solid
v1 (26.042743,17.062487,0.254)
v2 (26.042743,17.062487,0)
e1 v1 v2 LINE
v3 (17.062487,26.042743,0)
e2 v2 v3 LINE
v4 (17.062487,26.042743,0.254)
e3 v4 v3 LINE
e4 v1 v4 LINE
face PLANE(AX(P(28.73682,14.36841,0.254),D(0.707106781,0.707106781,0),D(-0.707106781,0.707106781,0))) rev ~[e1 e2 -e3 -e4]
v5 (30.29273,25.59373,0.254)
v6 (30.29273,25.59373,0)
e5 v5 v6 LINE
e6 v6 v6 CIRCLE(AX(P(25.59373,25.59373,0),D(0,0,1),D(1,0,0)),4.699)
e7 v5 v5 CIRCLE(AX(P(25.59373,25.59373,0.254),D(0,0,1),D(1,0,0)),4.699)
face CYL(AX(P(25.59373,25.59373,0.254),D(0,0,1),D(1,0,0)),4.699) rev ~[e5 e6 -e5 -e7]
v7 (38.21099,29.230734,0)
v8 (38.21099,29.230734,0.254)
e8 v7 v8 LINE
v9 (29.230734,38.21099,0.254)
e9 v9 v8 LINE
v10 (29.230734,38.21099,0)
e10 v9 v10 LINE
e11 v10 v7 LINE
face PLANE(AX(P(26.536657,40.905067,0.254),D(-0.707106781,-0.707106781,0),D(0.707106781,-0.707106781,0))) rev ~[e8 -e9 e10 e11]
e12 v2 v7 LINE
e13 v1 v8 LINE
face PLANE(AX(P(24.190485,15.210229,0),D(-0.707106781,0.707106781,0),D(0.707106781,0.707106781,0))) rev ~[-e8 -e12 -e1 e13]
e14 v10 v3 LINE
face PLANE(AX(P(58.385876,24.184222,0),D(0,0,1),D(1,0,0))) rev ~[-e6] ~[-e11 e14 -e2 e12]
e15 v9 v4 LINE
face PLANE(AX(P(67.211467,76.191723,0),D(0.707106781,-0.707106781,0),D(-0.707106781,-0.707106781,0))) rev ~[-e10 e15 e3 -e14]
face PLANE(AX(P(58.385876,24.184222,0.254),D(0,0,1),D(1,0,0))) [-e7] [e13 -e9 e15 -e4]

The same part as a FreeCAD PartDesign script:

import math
import FreeCAD as App
import Part
import Sketcher
from FreeCAD import Vector
Q = App.Units.Quantity

doc = App.newDocument("Part")
body = doc.addObject("PartDesign::Body", "Body")

# Sketch on XY plane
sketch1 = body.newObject("Sketcher::SketchObject", "Sketch")
sketch1.AttachmentSupport = (doc.getObject("XY_Plane"), [""])
sketch1.MapMode = "FlatFace"
sketch1.addGeometry([
    Part.LineSegment(Vector(67.2, 76.2, 0), Vector(8.7, 17.7, 0)),  # 0
    Part.LineSegment(Vector(8.7, 17.7, 0), Vector(7.2, 14.1, 0)),  # 1
    Part.ArcOfCircle(Part.Circle(Vector(0, 0, 0), Vector(0, 0, 1), 15.9), math.radians(-18), math.radians(63)),  # 2
    Part.LineSegment(Vector(15.1, -4.9, 0), Vector(18.6, -6.3, 0)),  # 3
    Part.LineSegment(Vector(18.6, -6.3, 0), Vector(101.4, -6.3, 0)),  # 4
    Part.ArcOfCircle(Part.Circle(Vector(0, 0, 0), Vector(0, 0, 1), 101.6), math.radians(-4), math.radians(49)),  # 5
    Part.ArcOfCircle(Part.Circle(Vector(0, 0, 0), Vector(0, 0, 1), 88.9), math.radians(4), math.radians(41)),  # 6
    Part.LineSegment(Vector(88.7, 6.3, 0), Vector(27.9, 6.3, 0)),  # 7
    Part.ArcOfCircle(Part.Circle(Vector(0, 0, 0), Vector(0, 0, 1), 28.6), math.radians(12.84), math.radians(32.16)),  # 8
    Part.LineSegment(Vector(24.2, 15.2, 0), Vector(67.2, 58.2, 0)),  # 9
], False)
sketch1.addConstraint([
    Sketcher.Constraint("Coincident", 0, 2, 1, 1),
    Sketcher.Constraint("Coincident", 1, 2, 2, 2),
    Sketcher.Constraint("Coincident", 2, 1, 3, 1),
    Sketcher.Constraint("Coincident", 3, 2, 4, 1),
    Sketcher.Constraint("Coincident", 4, 2, 5, 1),
    Sketcher.Constraint("Coincident", 5, 2, 0, 1),
    Sketcher.Constraint("Coincident", 6, 1, 7, 1),
    Sketcher.Constraint("Coincident", 7, 2, 8, 1),
    Sketcher.Constraint("Coincident", 8, 2, 9, 1),
    Sketcher.Constraint("Coincident", 9, 2, 6, 2),
    Sketcher.Constraint("Horizontal", 4),
    Sketcher.Constraint("Horizontal", 7),
    Sketcher.Constraint("Coincident", 2, 3, -1, 1),
    Sketcher.Constraint("Coincident", 5, 3, -1, 1),
    Sketcher.Constraint("Coincident", 6, 3, -1, 1),
    Sketcher.Constraint("Coincident", 8, 3, -1, 1),
    Sketcher.Constraint("Perpendicular", 1, 3),
    Sketcher.Constraint("Parallel", 0, 9),
    Sketcher.Constraint("Equal", 1, 3),
    Sketcher.Constraint("Radius", 5, Q("4 in")),
    Sketcher.Constraint("Radius", 6, Q("3.5 in")),
    Sketcher.Constraint("Angle", 0, Q("-135 deg")),
    Sketcher.Constraint("Radius", 2, Q("0.625 in")),
    Sketcher.Constraint("Radius", 8, Q("1.125 in")),
    Sketcher.Constraint("Angle", 1, Q("-112.5 deg")),
    Sketcher.Constraint("DistanceY", 4, 2, 6, 1, Q("0.5 in")),
    Sketcher.Constraint("DistanceY", 3, 2, -1, 1, Q("0.25 in")),
    Sketcher.Constraint("DistanceY", 2, 1, -1, 1, Q("4.882301 mm")),
    Sketcher.Constraint("DistanceY", -1, 1, 9, 2, Q("58.211098 mm")),
    Sketcher.Constraint("DistanceX", 5, 2, 4, 2, Q("34.189901 mm")),
])
pad1 = body.newObject("PartDesign::Pad", "Pad")
pad1.Profile = sketch1
pad1.Length = Q("0.01 in")

# Sketch on XY plane
sketch2 = body.newObject("Sketcher::SketchObject", "Sketch001")
sketch2.AttachmentSupport = (doc.getObject("XY_Plane"), [""])
sketch2.MapMode = "FlatFace"
sketch2.AttachmentOffset = App.Placement(Vector(0, 0, 0.01 * 25.4), App.Rotation())
sketch2.addGeometry([
    Part.Circle(Vector(22.2, 0, 0), Vector(0, 0, 1), 4.7),  # 0
    Part.Circle(Vector(36.2, 0, 0), Vector(0, 0, 1), 4.7),  # 1
    Part.Circle(Vector(61.7, 0, 0), Vector(0, 0, 1), 4.7),  # 2
    Part.Circle(Vector(75.7, 0, 0), Vector(0, 0, 1), 4.7),  # 3
    Part.Circle(Vector(95.2, 0, 0), Vector(0, 0, 1), 4.7),  # 4
    Part.Circle(Vector(15.7, 15.7, 0), Vector(0, 0, 1), 4.7),  # 5
    Part.Circle(Vector(25.6, 25.6, 0), Vector(0, 0, 1), 4.7),  # 6
    Part.Circle(Vector(43.6, 43.6, 0), Vector(0, 0, 1), 4.7),  # 7
    Part.Circle(Vector(53.5, 53.5, 0), Vector(0, 0, 1), 4.7),  # 8
    Part.Circle(Vector(92, 24.7, 0), Vector(0, 0, 1), 4.7),  # 9
    Part.Circle(Vector(82.5, 47.6, 0), Vector(0, 0, 1), 4.7),  # 10
    Part.Circle(Vector(67.4, 67.4, 0), Vector(0, 0, 1), 4.7),  # 11
], False)
sketch2.addConstraint([
    Sketcher.Constraint("Equal", 0, 1),
    Sketcher.Constraint("Equal", 1, 2),
    Sketcher.Constraint("Equal", 2, 3),
    Sketcher.Constraint("Equal", 3, 4),
    Sketcher.Constraint("Equal", 4, 5),
    Sketcher.Constraint("Equal", 5, 6),
    Sketcher.Constraint("Equal", 6, 7),
    Sketcher.Constraint("Equal", 7, 8),
    Sketcher.Constraint("Equal", 8, 9),
    Sketcher.Constraint("Equal", 9, 10),
    Sketcher.Constraint("Equal", 10, 11),
    Sketcher.Constraint("PointOnObject", 0, 3, -1),
    Sketcher.Constraint("PointOnObject", 1, 3, -1),
    Sketcher.Constraint("PointOnObject", 2, 3, -1),
    Sketcher.Constraint("PointOnObject", 3, 3, -1),
    Sketcher.Constraint("PointOnObject", 4, 3, -1),
    Sketcher.Constraint("Diameter", 0, Q("0.37 in")),
    Sketcher.Constraint("DistanceX", -1, 1, 2, 3, Q("2.43 in")),
    Sketcher.Constraint("DistanceX", -1, 1, 3, 3, Q("2.98 in")),
    Sketcher.Constraint("DistanceX", -1, 1, 4, 3, Q("3.75 in")),
    Sketcher.Constraint("DistanceX", 0, 3, 1, 3, Q("0.55 in")),
    Sketcher.Constraint("DistanceX", -1, 1, 0, 3, Q("0.875 in")),
    Sketcher.Constraint("DistanceY", -1, 1, 10, 3, Q("1.875 in")),
    Sketcher.Constraint("DistanceX", 11, 3, 10, 3, Q("15.136999 mm")),
    Sketcher.Constraint("DistanceX", -1, 1, 5, 3, Q("15.715448 mm")),
    Sketcher.Constraint("DistanceY", -1, 1, 5, 3, Q("15.715448 mm")),
    Sketcher.Constraint("DistanceX", -1, 1, 6, 3, Q("25.59373 mm")),
    Sketcher.Constraint("DistanceY", -1, 1, 6, 3, Q("25.59373 mm")),
    Sketcher.Constraint("DistanceX", -1, 1, 10, 3, Q("82.48892 mm")),
    Sketcher.Constraint("DistanceY", -1, 1, 11, 3, Q("67.351921 mm")),
    Sketcher.Constraint("DistanceX", 7, 3, 8, 3, Q("9.878282 mm")),
    Sketcher.Constraint("DistanceY", 7, 3, 8, 3, Q("9.878282 mm")),
    Sketcher.Constraint("DistanceX", 5, 3, 8, 3, Q("37.806878 mm")),
    Sketcher.Constraint("DistanceY", 5, 3, 8, 3, Q("37.806878 mm")),
    Sketcher.Constraint("DistanceX", 8, 3, 9, 3, Q("38.482108 mm")),
    Sketcher.Constraint("DistanceY", 9, 3, 7, 3, Q("18.991531 mm")),
])
pocket1 = body.newObject("PartDesign::Pocket", "Pocket")
pocket1.Profile = sketch2
pocket1.Type = "ThroughAll"

# Sketch on XY plane
sketch3 = body.newObject("Sketcher::SketchObject", "Sketch002")
sketch3.AttachmentSupport = (doc.getObject("XY_Plane"), [""])
sketch3.MapMode = "FlatFace"
sketch3.AttachmentOffset = App.Placement(Vector(0, 0, 0.01 * 25.4), App.Rotation())
sketch3.addGeometry([
    Part.LineSegment(Vector(17.1, 26, 0), Vector(15.3, 24.2, 0)),  # 0
    Part.LineSegment(Vector(15.3, 24.2, 0), Vector(15.7, 23.8, 0)),  # 1
    Part.LineSegment(Vector(15.7, 23.8, 0), Vector(17.5, 25.6, 0)),  # 2
    Part.LineSegment(Vector(17.5, 25.6, 0), Vector(17.1, 26, 0)),  # 3
    Part.LineSegment(Vector(45, 54, 0), Vector(43.2, 52.2, 0)),  # 4
    Part.LineSegment(Vector(43.2, 52.2, 0), Vector(43.6, 51.7, 0)),  # 5
    Part.LineSegment(Vector(43.6, 51.7, 0), Vector(45.4, 53.5, 0)),  # 6
    Part.LineSegment(Vector(45.4, 53.5, 0), Vector(45, 54, 0)),  # 7
    Part.LineSegment(Vector(27.9, -5.7, 0), Vector(27.9, -6.3, 0)),  # 8
    Part.LineSegment(Vector(27.9, -6.3, 0), Vector(30.5, -6.3, 0)),  # 9
    Part.LineSegment(Vector(30.5, -6.3, 0), Vector(30.5, -5.7, 0)),  # 10
    Part.LineSegment(Vector(30.5, -5.7, 0), Vector(27.9, -5.7, 0)),  # 11
    Part.LineSegment(Vector(67.4, -5.7, 0), Vector(67.4, -6.3, 0)),  # 12
    Part.LineSegment(Vector(67.4, -6.3, 0), Vector(70, -6.3, 0)),  # 13
    Part.LineSegment(Vector(70, -6.3, 0), Vector(70, -5.7, 0)),  # 14
    Part.LineSegment(Vector(70, -5.7, 0), Vector(67.4, -5.7, 0)),  # 15
    Part.LineSegment(Vector(31, 40, 0), Vector(29.2, 38.2, 0)),  # 16
    Part.LineSegment(Vector(29.2, 38.2, 0), Vector(29.7, 37.8, 0)),  # 17
    Part.LineSegment(Vector(29.7, 37.8, 0), Vector(31.5, 39.6, 0)),  # 18
    Part.LineSegment(Vector(31.5, 39.6, 0), Vector(31, 40, 0)),  # 19
    Part.LineSegment(Vector(56.8, 65.8, 0), Vector(55, 64, 0)),  # 20
    Part.LineSegment(Vector(55, 64, 0), Vector(55.5, 63.6, 0)),  # 21
    Part.LineSegment(Vector(55.5, 63.6, 0), Vector(57.3, 65.4, 0)),  # 22
    Part.LineSegment(Vector(57.3, 65.4, 0), Vector(56.8, 65.8, 0)),  # 23
    Part.LineSegment(Vector(47.7, -5.7, 0), Vector(47.7, -6.3, 0)),  # 24
    Part.LineSegment(Vector(47.7, -6.3, 0), Vector(50.2, -6.3, 0)),  # 25
    Part.LineSegment(Vector(50.2, -6.3, 0), Vector(50.2, -5.7, 0)),  # 26
    Part.LineSegment(Vector(50.2, -5.7, 0), Vector(47.7, -5.7, 0)),  # 27
    Part.LineSegment(Vector(84.2, -5.7, 0), Vector(84.2, -6.3, 0)),  # 28
    Part.LineSegment(Vector(84.2, -6.3, 0), Vector(86.7, -6.3, 0)),  # 29
    Part.LineSegment(Vector(86.7, -6.3, 0), Vector(86.7, -5.7, 0)),  # 30
    Part.LineSegment(Vector(86.7, -5.7, 0), Vector(84.2, -5.7, 0)),  # 31
    Part.LineSegment(Vector(99.9, 14.4, 0), Vector(100.3, 11.9, 0)),  # 32
    Part.LineSegment(Vector(100.3, 11.9, 0), Vector(101.5, 12.1, 0)),  # 33
    Part.LineSegment(Vector(101.5, 12.1, 0), Vector(101.2, 14.6, 0)),  # 34
    Part.LineSegment(Vector(101.2, 14.6, 0), Vector(99.9, 14.4, 0)),  # 35
    Part.LineSegment(Vector(93.8, 37.5, 0), Vector(94.9, 38, 0)),  # 36
    Part.LineSegment(Vector(94.9, 38, 0), Vector(94, 40.3, 0)),  # 37
    Part.LineSegment(Vector(94, 40.3, 0), Vector(92.8, 39.8, 0)),  # 38
    Part.LineSegment(Vector(92.8, 39.8, 0), Vector(93.8, 37.5, 0)),  # 39
    Part.LineSegment(Vector(79.3, 62.5, 0), Vector(80.9, 60.5, 0)),  # 40
    Part.LineSegment(Vector(80.9, 60.5, 0), Vector(81.9, 61.2, 0)),  # 41
    Part.LineSegment(Vector(81.9, 61.2, 0), Vector(80.3, 63.2, 0)),  # 42
    Part.LineSegment(Vector(80.3, 63.2, 0), Vector(79.3, 62.5, 0)),  # 43
    Part.LineSegment(Vector(13.6, 7, 0), Vector(14.6, 4.7, 0)),  # 44
    Part.LineSegment(Vector(14.6, 4.7, 0), Vector(15.7, 5.1, 0)),  # 45
    Part.LineSegment(Vector(15.7, 5.1, 0), Vector(14.8, 7.5, 0)),  # 46
    Part.LineSegment(Vector(14.8, 7.5, 0), Vector(13.6, 7, 0)),  # 47
], False)
sketch3.addConstraint([
    Sketcher.Constraint("Coincident", 0, 2, 1, 1),
    Sketcher.Constraint("Coincident", 1, 2, 2, 1),
    Sketcher.Constraint("Coincident", 2, 2, 3, 1),
    Sketcher.Constraint("Coincident", 3, 2, 0, 1),
    Sketcher.Constraint("Coincident", 4, 2, 5, 1),
    Sketcher.Constraint("Coincident", 5, 2, 6, 1),
    Sketcher.Constraint("Coincident", 6, 2, 7, 1),
    Sketcher.Constraint("Coincident", 7, 2, 4, 1),
    Sketcher.Constraint("Coincident", 8, 2, 9, 1),
    Sketcher.Constraint("Coincident", 9, 2, 10, 1),
    Sketcher.Constraint("Coincident", 10, 2, 11, 1),
    Sketcher.Constraint("Coincident", 11, 2, 8, 1),
    Sketcher.Constraint("Coincident", 12, 2, 13, 1),
    Sketcher.Constraint("Coincident", 13, 2, 14, 1),
    Sketcher.Constraint("Coincident", 14, 2, 15, 1),
    Sketcher.Constraint("Coincident", 15, 2, 12, 1),
    Sketcher.Constraint("Coincident", 16, 2, 17, 1),
    Sketcher.Constraint("Coincident", 17, 2, 18, 1),
    Sketcher.Constraint("Coincident", 18, 2, 19, 1),
    Sketcher.Constraint("Coincident", 19, 2, 16, 1),
    Sketcher.Constraint("Coincident", 20, 2, 21, 1),
    Sketcher.Constraint("Coincident", 21, 2, 22, 1),
    Sketcher.Constraint("Coincident", 22, 2, 23, 1),
    Sketcher.Constraint("Coincident", 23, 2, 20, 1),
    Sketcher.Constraint("Coincident", 24, 2, 25, 1),
    Sketcher.Constraint("Coincident", 25, 2, 26, 1),
    Sketcher.Constraint("Coincident", 26, 2, 27, 1),
    Sketcher.Constraint("Coincident", 27, 2, 24, 1),
    Sketcher.Constraint("Coincident", 28, 2, 29, 1),
    Sketcher.Constraint("Coincident", 29, 2, 30, 1),
    Sketcher.Constraint("Coincident", 30, 2, 31, 1),
    Sketcher.Constraint("Coincident", 31, 2, 28, 1),
    Sketcher.Constraint("Coincident", 32, 2, 33, 1),
    Sketcher.Constraint("Coincident", 33, 2, 34, 1),
    Sketcher.Constraint("Coincident", 34, 2, 35, 1),
    Sketcher.Constraint("Coincident", 35, 2, 32, 1),
    Sketcher.Constraint("Coincident", 36, 2, 37, 1),
    Sketcher.Constraint("Coincident", 37, 2, 38, 1),
    Sketcher.Constraint("Coincident", 38, 2, 39, 1),
    Sketcher.Constraint("Coincident", 39, 2, 36, 1),
    Sketcher.Constraint("Coincident", 40, 2, 41, 1),
    Sketcher.Constraint("Coincident", 41, 2, 42, 1),
    Sketcher.Constraint("Coincident", 42, 2, 43, 1),
    Sketcher.Constraint("Coincident", 43, 2, 40, 1),
    Sketcher.Constraint("Coincident", 44, 2, 45, 1),
    Sketcher.Constraint("Coincident", 45, 2, 46, 1),
    Sketcher.Constraint("Coincident", 46, 2, 47, 1),
    Sketcher.Constraint("Coincident", 47, 2, 44, 1),
    Sketcher.Constraint("Vertical", 8),
    Sketcher.Constraint("Horizontal", 9),
    Sketcher.Constraint("Vertical", 10),
    Sketcher.Constraint("Horizontal", 11),
    Sketcher.Constraint("Vertical", 12),
    Sketcher.Constraint("Horizontal", 13),
    Sketcher.Constraint("Vertical", 14),
    Sketcher.Constraint("Horizontal", 15),
    Sketcher.Constraint("Vertical", 24),
    Sketcher.Constraint("Horizontal", 25),
    Sketcher.Constraint("Vertical", 26),
    Sketcher.Constraint("Horizontal", 27),
    Sketcher.Constraint("Vertical", 28),
    Sketcher.Constraint("Horizontal", 29),
    Sketcher.Constraint("Vertical", 30),
    Sketcher.Constraint("Horizontal", 31),
    Sketcher.Constraint("Perpendicular", 0, 1),
    Sketcher.Constraint("Perpendicular", 1, 2),
    Sketcher.Constraint("Perpendicular", 2, 3),
    Sketcher.Constraint("Perpendicular", 3, 4),
    Sketcher.Constraint("Perpendicular", 4, 5),
    Sketcher.Constraint("Perpendicular", 5, 6),
    Sketcher.Constraint("Perpendicular", 6, 7),
    Sketcher.Constraint("Perpendicular", 7, 16),
    Sketcher.Constraint("Perpendicular", 16, 17),
    Sketcher.Constraint("Perpendicular", 17, 18),
    Sketcher.Constraint("Perpendicular", 18, 19),
    Sketcher.Constraint("Perpendicular", 19, 20),
    Sketcher.Constraint("Perpendicular", 20, 21),
    Sketcher.Constraint("Perpendicular", 21, 22),
    Sketcher.Constraint("Perpendicular", 22, 23),
    Sketcher.Constraint("Perpendicular", 32, 33),
    Sketcher.Constraint("Perpendicular", 33, 34),
    Sketcher.Constraint("Perpendicular", 34, 35),
    Sketcher.Constraint("Perpendicular", 36, 37),
    Sketcher.Constraint("Perpendicular", 37, 38),
    Sketcher.Constraint("Perpendicular", 38, 39),
    Sketcher.Constraint("Perpendicular", 40, 41),
    Sketcher.Constraint("Perpendicular", 41, 42),
    Sketcher.Constraint("Perpendicular", 42, 43),
    Sketcher.Constraint("Parallel", 39, 44),
    Sketcher.Constraint("Perpendicular", 44, 45),
    Sketcher.Constraint("Perpendicular", 45, 46),
    Sketcher.Constraint("Perpendicular", 46, 47),
    Sketcher.Constraint("Horizontal", 9, 2, 12, 2),
    Sketcher.Constraint("Horizontal", 11, 2, 14, 2),
    Sketcher.Constraint("Horizontal", 13, 2, 24, 2),
    Sketcher.Constraint("Horizontal", 15, 2, 26, 2),
    Sketcher.Constraint("Horizontal", 25, 2, 28, 2),
    Sketcher.Constraint("Horizontal", 27, 2, 30, 2),
    Sketcher.Constraint("Equal", 11, 13),
    Sketcher.Constraint("Equal", 15, 25),
    Sketcher.Constraint("Equal", 27, 29),
    Sketcher.Constraint("Equal", 2, 4),
    Sketcher.Constraint("Equal", 3, 5),
    Sketcher.Constraint("Equal", 6, 16),
    Sketcher.Constraint("Equal", 7, 17),
    Sketcher.Constraint("Equal", 18, 20),
    Sketcher.Constraint("Equal", 19, 21),
    Sketcher.Constraint("Equal", 22, 32),
    Sketcher.Constraint("Equal", 35, 36),
    Sketcher.Constraint("Equal", 34, 37),
    Sketcher.Constraint("Equal", 39, 40),
    Sketcher.Constraint("Equal", 38, 41),
    Sketcher.Constraint("Equal", 42, 44),
    Sketcher.Constraint("Equal", 43, 45),
    Sketcher.Constraint("DistanceX", 9, 1, 9, 2, Q("0.1 in")),
    Sketcher.Constraint("Angle", 0, Q("-135 deg")),
    Sketcher.Constraint("Distance", 0, Q("0.1 in")),
    Sketcher.Constraint("DistanceX", -1, 1, 8, 2, Q("1.1 in")),
    Sketcher.Constraint("Angle", 32, Q("-82.5 deg")),
    Sketcher.Constraint("Angle", 36, Q("22.5 deg")),
    Sketcher.Constraint("Angle", 40, Q("-52.5 deg")),
    Sketcher.Constraint("Distance", 33, Q("0.05 in")),
    Sketcher.Constraint("DistanceY", 8, 2, 8, 1, Q("0.025 in")),
    Sketcher.Constraint("DistanceY", 8, 2, -1, 1, Q("0.25 in")),
    Sketcher.Constraint("DistanceX", 13, 2, 28, 2, Q("0.56 in")),
    Sketcher.Constraint("Distance", 1, Q("0.025 in")),
    Sketcher.Constraint("DistanceX", -1, 1, 12, 2, Q("2.655 in")),
    Sketcher.Constraint("DistanceX", -1, 1, 24, 2, Q("1.8775 in")),
    Sketcher.Constraint("DistanceX", -1, 1, 2, 2, Q("17.511499 mm")),
    Sketcher.Constraint("DistanceX", -1, 1, 32, 2, Q("100.266999 mm")),
    Sketcher.Constraint("DistanceX", 16, 2, 4, 2, Q("13.964298 mm")),
    Sketcher.Constraint("DistanceY", 16, 2, 4, 2, Q("13.964298 mm")),
    Sketcher.Constraint("DistanceX", 0, 2, 16, 2, Q("13.964298 mm")),
    Sketcher.Constraint("DistanceY", 0, 2, 16, 2, Q("13.964298 mm")),
    Sketcher.Constraint("DistanceY", 6, 2, 20, 2, Q("10.5069 mm")),
    Sketcher.Constraint("DistanceX", 7, 2, 21, 2, Q("10.5069 mm")),
    Sketcher.Constraint("DistanceY", 35, 2, 36, 2, Q("23.512602 mm")),
    Sketcher.Constraint("DistanceX", 36, 2, 33, 2, Q("6.587302 mm")),
    Sketcher.Constraint("DistanceY", 37, 2, 41, 2, Q("20.932198 mm")),
    Sketcher.Constraint("DistanceY", 41, 2, 22, 2, Q("4.147099 mm")),
    Sketcher.Constraint("DistanceY", 46, 2, 2, 2, Q("18.102299 mm")),
    Sketcher.Constraint("DistanceY", -1, 1, 0, 2, Q("24.246692 mm")),
    Sketcher.Constraint("DistanceX", -1, 1, 42, 2, Q("80.335352 mm")),
    Sketcher.Constraint("DistanceX", -1, 1, 45, 2, Q("15.739259 mm")),
])
pocket2 = body.newObject("PartDesign::Pocket", "Pocket001")
pocket2.Profile = sketch3
pocket2.Type = "ThroughAll"

# Sketch on XY plane
sketch4 = body.newObject("Sketcher::SketchObject", "Sketch003")
sketch4.AttachmentSupport = (doc.getObject("XY_Plane"), [""])
sketch4.MapMode = "FlatFace"
sketch4.AttachmentOffset = App.Placement(Vector(0, 0, 0.01 * 25.4), App.Rotation())
sketch4.addGeometry([
    Part.LineSegment(Vector(-6, 90, 0), Vector(-6, -20, 0)),  # 0
    Part.LineSegment(Vector(-6, -20, 0), Vector(115, -20, 0)),  # 1
    Part.LineSegment(Vector(115, -20, 0), Vector(115, 90, 0)),  # 2
    Part.LineSegment(Vector(115, 90, 0), Vector(-6, 90, 0)),  # 3
    Part.LineSegment(Vector(29, 14, 0), Vector(14, 29, 0)),  # 4
    Part.LineSegment(Vector(14, 29, 0), Vector(27, 41, 0)),  # 5
    Part.LineSegment(Vector(27, 41, 0), Vector(41, 27, 0)),  # 6
    Part.LineSegment(Vector(41, 27, 0), Vector(29, 14, 0)),  # 7
], False)
sketch4.addConstraint([
    Sketcher.Constraint("Coincident", 0, 2, 1, 1),
    Sketcher.Constraint("Coincident", 1, 2, 2, 1),
    Sketcher.Constraint("Coincident", 2, 2, 3, 1),
    Sketcher.Constraint("Coincident", 3, 2, 0, 1),
    Sketcher.Constraint("Coincident", 4, 2, 5, 1),
    Sketcher.Constraint("Coincident", 5, 2, 6, 1),
    Sketcher.Constraint("Coincident", 6, 2, 7, 1),
    Sketcher.Constraint("Coincident", 7, 2, 4, 1),
    Sketcher.Constraint("Vertical", 0),
    Sketcher.Constraint("Horizontal", 1),
    Sketcher.Constraint("Vertical", 2),
    Sketcher.Constraint("Horizontal", 3),
    Sketcher.Constraint("Perpendicular", 4, 5),
    Sketcher.Constraint("Perpendicular", 5, 6),
    Sketcher.Constraint("Perpendicular", 6, 7),
    Sketcher.Constraint("Angle", 4, Q("135 deg")),
    Sketcher.Constraint("Distance", 4, Q("0.8 in")),
    Sketcher.Constraint("Distance", 5, Q("0.6775 in")),
    Sketcher.Constraint("DistanceX", 1, 1, 1, 2, Q("121.447 mm")),
    Sketcher.Constraint("DistanceY", 0, 2, 0, 1, Q("109.618 mm")),
    Sketcher.Constraint("DistanceX", 0, 2, -1, 1, Q("6.309 mm")),
    Sketcher.Constraint("DistanceY", 0, 2, -1, 1, Q("19.888 mm")),
    Sketcher.Constraint("DistanceX", -1, 1, 4, 2, Q("14.36841 mm")),
    Sketcher.Constraint("DistanceY", -1, 1, 4, 2, Q("28.73682 mm")),
])
pocket3 = body.newObject("PartDesign::Pocket", "Pocket002")
pocket3.Profile = sketch4
pocket3.Type = "ThroughAll"

doc.recompute()
